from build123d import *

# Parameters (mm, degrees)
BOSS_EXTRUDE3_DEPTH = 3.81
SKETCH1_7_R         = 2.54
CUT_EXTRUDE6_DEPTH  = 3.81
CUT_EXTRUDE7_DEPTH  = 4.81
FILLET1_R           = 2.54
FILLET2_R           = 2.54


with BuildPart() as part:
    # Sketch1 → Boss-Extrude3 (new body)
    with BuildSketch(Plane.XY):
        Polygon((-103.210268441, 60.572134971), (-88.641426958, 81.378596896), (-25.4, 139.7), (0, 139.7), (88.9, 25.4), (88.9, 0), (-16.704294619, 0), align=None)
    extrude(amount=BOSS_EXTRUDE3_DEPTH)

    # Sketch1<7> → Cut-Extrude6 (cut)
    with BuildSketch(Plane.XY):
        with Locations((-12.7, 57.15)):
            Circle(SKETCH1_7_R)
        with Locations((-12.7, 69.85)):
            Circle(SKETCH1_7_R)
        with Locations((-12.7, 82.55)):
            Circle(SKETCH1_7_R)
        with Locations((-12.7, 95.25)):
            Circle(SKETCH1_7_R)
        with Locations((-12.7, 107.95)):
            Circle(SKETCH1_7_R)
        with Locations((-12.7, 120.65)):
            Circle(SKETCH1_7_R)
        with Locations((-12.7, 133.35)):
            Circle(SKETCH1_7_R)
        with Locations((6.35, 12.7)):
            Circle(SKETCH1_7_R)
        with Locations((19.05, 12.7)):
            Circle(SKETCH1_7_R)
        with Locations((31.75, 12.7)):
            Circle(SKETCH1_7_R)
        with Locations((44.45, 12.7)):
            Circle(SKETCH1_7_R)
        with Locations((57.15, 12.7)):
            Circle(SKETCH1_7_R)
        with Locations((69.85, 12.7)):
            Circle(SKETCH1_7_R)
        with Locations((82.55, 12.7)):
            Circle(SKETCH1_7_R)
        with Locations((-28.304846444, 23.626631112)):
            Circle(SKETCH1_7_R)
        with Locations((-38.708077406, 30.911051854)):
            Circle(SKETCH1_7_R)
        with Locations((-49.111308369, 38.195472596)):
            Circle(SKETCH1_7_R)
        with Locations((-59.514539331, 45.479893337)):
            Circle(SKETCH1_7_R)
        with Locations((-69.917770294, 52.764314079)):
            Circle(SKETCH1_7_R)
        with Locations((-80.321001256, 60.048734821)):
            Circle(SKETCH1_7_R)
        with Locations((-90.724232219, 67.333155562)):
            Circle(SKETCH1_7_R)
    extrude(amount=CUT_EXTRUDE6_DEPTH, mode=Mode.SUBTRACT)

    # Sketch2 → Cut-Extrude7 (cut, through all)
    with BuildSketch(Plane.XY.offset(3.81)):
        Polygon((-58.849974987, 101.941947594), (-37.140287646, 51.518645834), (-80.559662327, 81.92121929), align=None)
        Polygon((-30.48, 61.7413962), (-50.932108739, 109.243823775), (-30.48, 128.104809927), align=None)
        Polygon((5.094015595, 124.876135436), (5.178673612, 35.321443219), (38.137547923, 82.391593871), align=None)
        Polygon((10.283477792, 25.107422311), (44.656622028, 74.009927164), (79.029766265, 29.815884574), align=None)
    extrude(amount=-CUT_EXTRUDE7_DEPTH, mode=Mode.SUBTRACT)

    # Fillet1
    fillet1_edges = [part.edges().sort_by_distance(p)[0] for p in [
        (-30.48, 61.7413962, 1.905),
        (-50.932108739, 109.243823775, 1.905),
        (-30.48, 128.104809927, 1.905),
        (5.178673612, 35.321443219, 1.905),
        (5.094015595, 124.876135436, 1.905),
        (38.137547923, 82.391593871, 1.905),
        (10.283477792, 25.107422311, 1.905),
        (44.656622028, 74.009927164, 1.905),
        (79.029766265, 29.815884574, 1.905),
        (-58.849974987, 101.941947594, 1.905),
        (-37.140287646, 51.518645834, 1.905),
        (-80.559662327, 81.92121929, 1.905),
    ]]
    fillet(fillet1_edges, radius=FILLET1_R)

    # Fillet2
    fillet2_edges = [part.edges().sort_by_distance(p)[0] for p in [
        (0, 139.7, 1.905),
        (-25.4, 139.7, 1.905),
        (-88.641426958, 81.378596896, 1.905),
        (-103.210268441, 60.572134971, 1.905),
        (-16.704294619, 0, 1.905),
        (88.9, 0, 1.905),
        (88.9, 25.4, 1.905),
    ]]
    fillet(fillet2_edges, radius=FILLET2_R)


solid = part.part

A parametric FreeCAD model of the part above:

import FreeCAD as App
import Part
import Sketcher
Q = App.Units.Quantity


def edges_at(feature, points):
    """Names of the edges that pass closest to the given points."""
    edges = feature.Shape.Edges
    near = lambda p: min(range(len(edges)), key=lambda i: edges[i].distToShape(Part.Vertex(*p))[0])
    return sorted({f"Edge{near(p) + 1}" for p in points})


def add_polygon(sketch, points):
    """Adds a closed chain of lines whose ends are joined by coincident constraints."""
    first, n = sketch.GeometryCount, len(points)
    for a, b in zip(points, points[1:] + points[:1]):
        sketch.addGeometry(Part.LineSegment(App.Vector(*a, 0), App.Vector(*b, 0)), False)
    for i in range(n):
        sketch.addConstraint(Sketcher.Constraint("Coincident", first + i, 2, first + (i + 1) % n, 1))

doc = App.newDocument("Part")
body = doc.addObject("PartDesign::Body", "Body")

sketch1 = body.newObject("Sketcher::SketchObject", "Sketch")
sketch1.AttachmentSupport = (doc.getObject("XY_Plane"), [""])
sketch1.MapMode = "FlatFace"
add_polygon(sketch1, [(-89, 81), (-103, 61), (-17, 0), (89, 0), (89, 25), (0, 140), (-25, 140)])
sketch1.addConstraint([
    Sketcher.Constraint("Horizontal", 2),
    Sketcher.Constraint("Vertical", 3),
    Sketcher.Constraint("Horizontal", 5),
    Sketcher.Constraint("PointOnObject", 1, 2, -1),
    Sketcher.Constraint("PointOnObject", 4, 2, -2),
    Sketcher.Constraint("Perpendicular", 0, 1),
    Sketcher.Constraint("Equal", 5, 3),
    Sketcher.Constraint("DistanceX", 5, 2, 5, 1, Q("1 in")),
    Sketcher.Constraint("Distance", 0, Q("1 in")),
    Sketcher.Constraint("Angle", 0, Q("-125 deg")),
    Sketcher.Constraint("DistanceX", -1, 1, 2, 2, Q("3.5 in")),
    Sketcher.Constraint("DistanceY", -1, 1, 4, 2, Q("5.5 in")),
    Sketcher.Constraint("DistanceX", 2, 1, 2, 2, 105.604295),
    Sketcher.Constraint("DistanceX", 0, 2, -1, 1, 103.210268),
])
pad1 = body.newObject("PartDesign::Pad", "Pad")
pad1.Profile = sketch1
pad1.Length = Q("0.15 in")

sketch2 = body.newObject("Sketcher::SketchObject", "Sketch001")
sketch2.AttachmentSupport = (doc.getObject("XY_Plane"), [""])
sketch2.MapMode = "FlatFace"
sketch2.addGeometry([
    Part.Circle(App.Vector(-12.7, 57.1, 0), App.Vector(0, 0, 1), 2.5),
    Part.Circle(App.Vector(-12.7, 69.8, 0), App.Vector(0, 0, 1), 2.5),
    Part.Circle(App.Vector(-12.7, 82.5, 0), App.Vector(0, 0, 1), 2.5),
    Part.Circle(App.Vector(-12.7, 95.2, 0), App.Vector(0, 0, 1), 2.5),
    Part.Circle(App.Vector(-12.7, 108, 0), App.Vector(0, 0, 1), 2.5),
    Part.Circle(App.Vector(-12.7, 120.7, 0), App.Vector(0, 0, 1), 2.5),
    Part.Circle(App.Vector(-12.7, 133.3, 0), App.Vector(0, 0, 1), 2.5),
    Part.Circle(App.Vector(6.3, 12.7, 0), App.Vector(0, 0, 1), 2.5),
    Part.Circle(App.Vector(19.1, 12.7, 0), App.Vector(0, 0, 1), 2.5),
    Part.Circle(App.Vector(31.8, 12.7, 0), App.Vector(0, 0, 1), 2.5),
    Part.Circle(App.Vector(44.5, 12.7, 0), App.Vector(0, 0, 1), 2.5),
    Part.Circle(App.Vector(57.1, 12.7, 0), App.Vector(0, 0, 1), 2.5),
    Part.Circle(App.Vector(69.8, 12.7, 0), App.Vector(0, 0, 1), 2.5),
    Part.Circle(App.Vector(82.5, 12.7, 0), App.Vector(0, 0, 1), 2.5),
    Part.Circle(App.Vector(-28.3, 23.6, 0), App.Vector(0, 0, 1), 2.5),
    Part.Circle(App.Vector(-38.7, 30.9, 0), App.Vector(0, 0, 1), 2.5),
    Part.Circle(App.Vector(-49.1, 38.2, 0), App.Vector(0, 0, 1), 2.5),
    Part.Circle(App.Vector(-59.5, 45.5, 0), App.Vector(0, 0, 1), 2.5),
    Part.Circle(App.Vector(-69.9, 52.8, 0), App.Vector(0, 0, 1), 2.5),
    Part.Circle(App.Vector(-80.3, 60, 0), App.Vector(0, 0, 1), 2.5),
    Part.Circle(App.Vector(-90.7, 67.3, 0), App.Vector(0, 0, 1), 2.5),
], False)
sketch2.addConstraint([
    Sketcher.Constraint("Equal", 0, 1),
    Sketcher.Constraint("Equal", 1, 2),
    Sketcher.Constraint("Equal", 2, 3),
    Sketcher.Constraint("Equal", 3, 4),
    Sketcher.Constraint("Equal", 4, 5),
    Sketcher.Constraint("Equal", 5, 6),
    Sketcher.Constraint("Equal", 6, 7),
    Sketcher.Constraint("Equal", 7, 8),
    Sketcher.Constraint("Equal", 8, 9),
    Sketcher.Constraint("Equal", 9, 10),
    Sketcher.Constraint("Equal", 10, 11),
    Sketcher.Constraint("Equal", 11, 12),
    Sketcher.Constraint("Equal", 12, 13),
    Sketcher.Constraint("Equal", 13, 14),
    Sketcher.Constraint("Equal", 14, 15),
    Sketcher.Constraint("Equal", 15, 16),
    Sketcher.Constraint("Equal", 16, 17),
    Sketcher.Constraint("Equal", 17, 18),
    Sketcher.Constraint("Equal", 18, 19),
    Sketcher.Constraint("Equal", 19, 20),
    Sketcher.Constraint("Horizontal", 7, 3, 8, 3),
    Sketcher.Constraint("Horizontal", 8, 3, 9, 3),
    Sketcher.Constraint("Horizontal", 9, 3, 10, 3),
    Sketcher.Constraint("Horizontal", 10, 3, 11, 3),
    Sketcher.Constraint("Horizontal", 11, 3, 12, 3),
    Sketcher.Constraint("Horizontal", 12, 3, 13, 3),
    Sketcher.Constraint("Vertical", 0, 3, 1, 3),
    Sketcher.Constraint("Vertical", 1, 3, 2, 3),
    Sketcher.Constraint("Vertical", 2, 3, 3, 3),
    Sketcher.Constraint("Vertical", 3, 3, 4, 3),
    Sketcher.Constraint("Vertical", 4, 3, 5, 3),
    Sketcher.Constraint("Vertical", 5, 3, 6, 3),
    Sketcher.Constraint("Diameter", 0, Q("0.2 in")),
    Sketcher.Constraint("DistanceY", 0, 3, 2, 3, Q("1 in")),
    Sketcher.Constraint("DistanceY", 1, 3, 3, 3, Q("1 in")),
    Sketcher.Constraint("DistanceY", 2, 3, 4, 3, Q("1 in")),
    Sketcher.Constraint("DistanceY", 3, 3, 5, 3, Q("1 in")),
    Sketcher.Constraint("DistanceY", 4, 3, 6, 3, Q("1 in")),
    Sketcher.Constraint("DistanceX", 7, 3, 9, 3, Q("1 in")),
    Sketcher.Constraint("DistanceX", 8, 3, 10, 3, Q("1 in")),
    Sketcher.Constraint("DistanceX", 9, 3, 11, 3, Q("1 in")),
    Sketcher.Constraint("DistanceX", 10, 3, 12, 3, Q("1 in")),
    Sketcher.Constraint("DistanceX", 11, 3, 13, 3, Q("1 in")),
    Sketcher.Constraint("DistanceX", 0, 3, -1, 1, Q("0.5 in")),
    Sketcher.Constraint("DistanceY", -1, 1, 7, 3, Q("0.5 in")),
    Sketcher.Constraint("DistanceY", 0, 3, 1, 3, Q("0.5 in")),
    Sketcher.Constraint("DistanceX", 7, 3, 8, 3, Q("0.5 in")),
    Sketcher.Constraint("DistanceY", -1, 1, 0, 3, Q("2.25 in")),
    Sketcher.Constraint("DistanceX", -1, 1, 7, 3, Q("0.25 in")),
    Sketcher.Constraint("DistanceX", 19, 3, -1, 1, 80.321001),
    Sketcher.Constraint("DistanceY", -1, 1, 14, 3, 23.626631),
    Sketcher.Constraint("DistanceY", -1, 1, 15, 3, 30.911052),
    Sketcher.Constraint("DistanceX", 16, 3, -1, 1, 49.111308),
    Sketcher.Constraint("DistanceX", 17, 3, -1, 1, 59.514539),
    Sketcher.Constraint("DistanceX", 18, 3, -1, 1, 69.91777),
    Sketcher.Constraint("DistanceX", 15, 3, 14, 3, 10.403231),
    Sketcher.Constraint("DistanceX", 16, 3, 15, 3, 10.403231),
    Sketcher.Constraint("DistanceY", 15, 3, 16, 3, 7.284421),
    Sketcher.Constraint("DistanceY", 16, 3, 17, 3, 7.284421),
    Sketcher.Constraint("DistanceY", 17, 3, 18, 3, 7.284421),
    Sketcher.Constraint("DistanceY", 18, 3, 19, 3, 7.284421),
    Sketcher.Constraint("DistanceX", 20, 3, 19, 3, 10.403231),
    Sketcher.Constraint("DistanceY", 19, 3, 20, 3, 7.284421),
])
pocket1 = body.newObject("PartDesign::Pocket", "Pocket")
pocket1.Profile = sketch2
pocket1.Length = Q("0.15 in")
pocket1.Reversed = True

sketch3 = body.newObject("Sketcher::SketchObject", "Sketch002")
sketch3.AttachmentSupport = (doc.getObject("XY_Plane"), [""])
sketch3.MapMode = "FlatFace"
sketch3.AttachmentOffset = App.Placement(App.Vector(0, 0, 0.15 * 25.4), App.Rotation())
add_polygon(sketch3, [(-37, 52), (-59, 102), (-81, 82)])
add_polygon(sketch3, [(-51, 109), (-30, 62), (-30, 128)])
add_polygon(sketch3, [(5, 125), (5, 35), (38, 82)])
add_polygon(sketch3, [(45, 74), (10, 25), (79, 30)])
sketch3.addConstraint([
    Sketcher.Constraint("Vertical", 4),
    Sketcher.Constraint("Parallel", 0, 3),
    Sketcher.Constraint("Parallel", 1, 5),
    Sketcher.Constraint("Perpendicular", 2, 7),
    Sketcher.Constraint("Parallel", 8, 11),
    Sketcher.Constraint("Angle", 2, Q("-35 deg")),
    Sketcher.Constraint("DistanceX", 3, 2, -1, 1, Q("1.2 in")),
    Sketcher.Constraint("DistanceY", 3, 2, 7, 2, Q("0.8129999 in")),
    Sketcher.Constraint("DistanceY", 2, 2, 0, 2, 50.423302),
    Sketcher.Constraint("Distance", 0, 54.898269),
    Sketcher.Constraint("Distance", 2, 53.005269),
    Sketcher.Constraint("Distance", 9, 59.774309),
    Sketcher.Constraint("DistanceY", 4, 1, 4, 2, 66.363414),
    Sketcher.Constraint("DistanceY", -1, 1, 1, 2, 81.921219),
    Sketcher.Constraint("DistanceY", -1, 1, 4, 2, 128.10481),
    Sketcher.Constraint("DistanceX", 5, 2, 2, 2, 13.791821),
    Sketcher.Constraint("DistanceX", 2, 2, 6, 2, 42.318961),
    Sketcher.Constraint("DistanceY", 6, 2, 5, 2, 73.922381),
    Sketcher.Constraint("DistanceY", 7, 2, 8, 2, 42.484542),
    Sketcher.Constraint("DistanceX", 0, 2, 8, 2, 63.943991),
    Sketcher.Constraint("DistanceY", 9, 2, 6, 2, 10.214021),
    Sketcher.Constraint("DistanceX", 9, 2, 7, 2, 27.85407),
    Sketcher.Constraint("DistanceX", 7, 2, 10, 2, 40.892218),
    Sketcher.Constraint("DistanceY", 10, 2, 7, 2, 52.575709),
])
pocket2 = body.newObject("PartDesign::Pocket", "Pocket001")
pocket2.Profile = sketch3
pocket2.Type = "ThroughAll"
doc.recompute()

fillet = body.newObject("PartDesign::Fillet", "Fillet")
fillet.Base = (pocket2, edges_at(pocket2, [
    (-30.48, 61.741, 1.905),
    (-50.932, 109.244, 1.905),
    (-30.48, 128.105, 1.905),
    (5.179, 35.321, 1.905),
    (5.094, 124.876, 1.905),
    (38.138, 82.392, 1.905),
    (10.283, 25.107, 1.905),
    (44.657, 74.01, 1.905),
    (79.03, 29.816, 1.905),
    (-58.85, 101.942, 1.905),
    (-37.14, 51.519, 1.905),
    (-80.56, 81.921, 1.905),
]))
fillet.Radius = Q("0.1 in")
doc.recompute()

fillet2 = body.newObject("PartDesign::Fillet", "Fillet001")
fillet2.Base = (fillet, edges_at(fillet, [
    (0, 139.7, 1.905),
    (-25.4, 139.7, 1.905),
    (-88.641, 81.379, 1.905),
    (-103.21, 60.572, 1.905),
    (-16.704, 0, 1.905),
    (88.9, 0, 1.905),
    (88.9, 25.4, 1.905),
]))
fillet2.Radius = Q("0.1 in")

doc.recompute()
